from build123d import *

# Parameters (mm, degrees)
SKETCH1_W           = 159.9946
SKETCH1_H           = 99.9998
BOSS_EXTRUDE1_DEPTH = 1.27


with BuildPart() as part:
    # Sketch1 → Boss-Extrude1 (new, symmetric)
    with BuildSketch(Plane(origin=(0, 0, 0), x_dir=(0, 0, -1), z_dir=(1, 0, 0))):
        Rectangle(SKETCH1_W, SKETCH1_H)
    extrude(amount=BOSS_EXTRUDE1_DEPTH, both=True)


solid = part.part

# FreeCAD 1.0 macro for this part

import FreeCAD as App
import Part
import Sketcher
Q = App.Units.Quantity


def add_polygon(sketch, points):
    """Adds a closed chain of lines whose ends are joined by coincident constraints."""
    first, n = sketch.GeometryCount, len(points)
    for a, b in zip(points, points[1:] + points[:1]):
        sketch.addGeometry(Part.LineSegment(App.Vector(*a, 0), App.Vector(*b, 0)), False)
    for i in range(n):
        sketch.addConstraint(Sketcher.Constraint("Coincident", first + i, 2, first + (i + 1) % n, 1))

doc = App.newDocument("Part")
body = doc.addObject("PartDesign::Body", "Body")

# Sketch on YZ plane
sketch1 = body.newObject("Sketcher::SketchObject", "Sketch")
sketch1.AttachmentSupport = (doc.getObject("YZ_Plane"), [""])
sketch1.MapMode = "FlatFace"
add_polygon(sketch1, [(50, 80), (-50, 80), (-50, -80), (50, -80)])  # lines 0-3
sketch1.addConstraint(Sketcher.Constraint("Horizontal", 0))
sketch1.addConstraint(Sketcher.Constraint("Vertical", 1))
sketch1.addConstraint(Sketcher.Constraint("Horizontal", 2))
sketch1.addConstraint(Sketcher.Constraint("Vertical", 3))
sketch1.addConstraint(Sketcher.Constraint("Symmetric", 0, 2, 2, 2, -1, 1))
sketch1.addConstraint(Sketcher.Constraint("DistanceX", 0, 2, 0, 1, Q("3.937 in")))
sketch1.addConstraint(Sketcher.Constraint("DistanceY", 1, 2, 1, 1, Q("6.299 in")))
pad1 = body.newObject("PartDesign::Pad", "Pad")
pad1.Profile = sketch1
pad1.Length = Q("0.1 in")
pad1.Midplane = True

doc.recompute()
